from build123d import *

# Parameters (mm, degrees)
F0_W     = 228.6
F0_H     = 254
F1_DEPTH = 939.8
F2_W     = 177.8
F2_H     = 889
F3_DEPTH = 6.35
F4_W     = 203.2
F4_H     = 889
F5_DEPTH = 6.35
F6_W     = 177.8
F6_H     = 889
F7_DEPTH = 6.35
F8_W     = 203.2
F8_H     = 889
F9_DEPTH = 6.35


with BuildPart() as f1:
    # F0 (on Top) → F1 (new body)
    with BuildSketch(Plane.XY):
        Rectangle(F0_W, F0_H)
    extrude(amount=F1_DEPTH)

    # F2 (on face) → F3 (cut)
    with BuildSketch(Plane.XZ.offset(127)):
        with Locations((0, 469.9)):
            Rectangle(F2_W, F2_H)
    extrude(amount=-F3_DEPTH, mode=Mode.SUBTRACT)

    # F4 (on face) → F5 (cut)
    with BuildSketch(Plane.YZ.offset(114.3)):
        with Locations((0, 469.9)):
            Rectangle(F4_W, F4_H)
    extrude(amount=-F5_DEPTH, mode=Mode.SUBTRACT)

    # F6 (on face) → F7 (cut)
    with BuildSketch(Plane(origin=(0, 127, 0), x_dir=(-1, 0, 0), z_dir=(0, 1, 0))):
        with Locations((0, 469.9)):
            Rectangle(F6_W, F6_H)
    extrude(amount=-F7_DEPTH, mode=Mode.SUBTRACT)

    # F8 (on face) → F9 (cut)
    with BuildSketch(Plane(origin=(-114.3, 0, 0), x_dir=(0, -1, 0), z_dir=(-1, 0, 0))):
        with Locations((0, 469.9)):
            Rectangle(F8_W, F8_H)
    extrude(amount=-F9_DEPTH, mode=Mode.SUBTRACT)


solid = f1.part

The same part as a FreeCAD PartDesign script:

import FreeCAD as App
import Part
import Sketcher
from FreeCAD import Vector
Q = App.Units.Quantity


def add_polygon(sketch, points):
    """Adds a closed chain of lines whose ends are joined by coincident constraints."""
    first, n = sketch.GeometryCount, len(points)
    for a, b in zip(points, points[1:] + points[:1]):
        sketch.addGeometry(Part.LineSegment(App.Vector(*a, 0), App.Vector(*b, 0)), False)
    for i in range(n):
        sketch.addConstraint(Sketcher.Constraint("Coincident", first + i, 2, first + (i + 1) % n, 1))

doc = App.newDocument("Part")
params = doc.addObject("Spreadsheet::Sheet", "Params")
for row, (alias, value) in enumerate([
    ("sketch1_width", "9 in"),
    ("sketch1_height", "10 in"),
    ("pad1_length", "37 in"),
    ("sketch2_width", "7 in"),
    ("sketch2_height", "35 in"),
    ("pocket1_length", "0.25 in"),
    ("sketch3_width", "8 in"),
    ("sketch3_height", "35 in"),
    ("pocket2_length", "0.25 in"),
    ("sketch4_width", "7 in"),
    ("sketch4_height", "35 in"),
    ("pocket3_length", "0.25 in"),
    ("sketch5_width", "8 in"),
    ("sketch5_height", "35 in"),
    ("pocket4_length", "0.25 in"),
], start=1):
    params.set(f"A{row}", alias)
    params.set(f"B{row}", "=" + value)
    params.setAlias(f"B{row}", alias)

body = doc.addObject("PartDesign::Body", "Body")

# Sketch on XY plane
sketch1 = body.newObject("Sketcher::SketchObject", "Sketch")
sketch1.AttachmentSupport = (doc.getObject("XY_Plane"), [""])
sketch1.MapMode = "FlatFace"
add_polygon(sketch1, [(-114, 127), (-114, -127), (114, -127), (114, 127)])  # lines 0-3
sketch1.addConstraint(Sketcher.Constraint("Vertical", 0))
sketch1.addConstraint(Sketcher.Constraint("Horizontal", 1))
sketch1.addConstraint(Sketcher.Constraint("Vertical", 2))
sketch1.addConstraint(Sketcher.Constraint("Horizontal", 3))
sketch1.addConstraint(Sketcher.Constraint("Symmetric", 0, 2, 2, 2, -1, 1))
sketch1.addConstraint(Sketcher.Constraint("DistanceX", 1, 1, 1, 2, Q("9 in")))
sketch1.addConstraint(Sketcher.Constraint("DistanceY", 0, 2, 0, 1, Q("10 in")))
sketch1.setExpression("Constraints[9]", "Params.sketch1_width")
sketch1.setExpression("Constraints[10]", "Params.sketch1_height")
pad1 = body.newObject("PartDesign::Pad", "Pad")
pad1.Profile = sketch1
pad1.setExpression("Length", "Params.pad1_length")

# Sketch on XZ plane
sketch2 = body.newObject("Sketcher::SketchObject", "Sketch001")
sketch2.AttachmentSupport = (doc.getObject("XZ_Plane"), [""])
sketch2.MapMode = "FlatFace"
sketch2.AttachmentOffset = App.Placement(Vector(0, 0, 5 * 25.4), App.Rotation())
add_polygon(sketch2, [(-89, 914), (-89, 25), (89, 25), (89, 914)])  # lines 0-3
sketch2.addConstraint(Sketcher.Constraint("Vertical", 0))
sketch2.addConstraint(Sketcher.Constraint("Horizontal", 1))
sketch2.addConstraint(Sketcher.Constraint("Vertical", 2))
sketch2.addConstraint(Sketcher.Constraint("Horizontal", 3))
sketch2.addConstraint(Sketcher.Constraint("DistanceX", 1, 1, 1, 2, Q("7 in")))
sketch2.addConstraint(Sketcher.Constraint("DistanceY", 0, 2, 0, 1, Q("35 in")))
sketch2.addConstraint(Sketcher.Constraint("DistanceY", -1, 1, 0, 2, Q("1 in")))
sketch2.addConstraint(Sketcher.Constraint("DistanceX", 0, 2, -1, 1, Q("3.5 in")))
sketch2.setExpression("Constraints[8]", "Params.sketch2_width")
sketch2.setExpression("Constraints[9]", "Params.sketch2_height")
pocket1 = body.newObject("PartDesign::Pocket", "Pocket")
pocket1.Profile = sketch2
pocket1.setExpression("Length", "Params.pocket1_length")

# Sketch on YZ plane
sketch3 = body.newObject("Sketcher::SketchObject", "Sketch002")
sketch3.AttachmentSupport = (doc.getObject("YZ_Plane"), [""])
sketch3.MapMode = "FlatFace"
sketch3.AttachmentOffset = App.Placement(Vector(0, 0, 4.5 * 25.4), App.Rotation())
add_polygon(sketch3, [(-102, 914), (-102, 25), (102, 25), (102, 914)])  # lines 0-3
sketch3.addConstraint(Sketcher.Constraint("Vertical", 0))
sketch3.addConstraint(Sketcher.Constraint("Horizontal", 1))
sketch3.addConstraint(Sketcher.Constraint("Vertical", 2))
sketch3.addConstraint(Sketcher.Constraint("Horizontal", 3))
sketch3.addConstraint(Sketcher.Constraint("DistanceX", 1, 1, 1, 2, Q("8 in")))
sketch3.addConstraint(Sketcher.Constraint("DistanceY", 0, 2, 0, 1, Q("35 in")))
sketch3.addConstraint(Sketcher.Constraint("DistanceX", 0, 2, -1, 1, Q("4 in")))
sketch3.addConstraint(Sketcher.Constraint("DistanceY", -1, 1, 0, 2, Q("1 in")))
sketch3.setExpression("Constraints[8]", "Params.sketch3_width")
sketch3.setExpression("Constraints[9]", "Params.sketch3_height")
pocket2 = body.newObject("PartDesign::Pocket", "Pocket001")
pocket2.Profile = sketch3
pocket2.setExpression("Length", "Params.pocket2_length")

# Sketch on XZ plane
sketch4 = body.newObject("Sketcher::SketchObject", "Sketch003")
sketch4.AttachmentSupport = (doc.getObject("XZ_Plane"), [""])
sketch4.MapMode = "FlatFace"
sketch4.AttachmentOffset = App.Placement(Vector(0, 0, -5 * 25.4), App.Rotation())
add_polygon(sketch4, [(89, 914), (89, 25), (-89, 25), (-89, 914)])  # lines 0-3
sketch4.addConstraint(Sketcher.Constraint("Vertical", 0))
sketch4.addConstraint(Sketcher.Constraint("Horizontal", 1))
sketch4.addConstraint(Sketcher.Constraint("Vertical", 2))
sketch4.addConstraint(Sketcher.Constraint("Horizontal", 3))
sketch4.addConstraint(Sketcher.Constraint("DistanceX", 1, 2, 1, 1, Q("7 in")))
sketch4.addConstraint(Sketcher.Constraint("DistanceY", 0, 2, 0, 1, Q("35 in")))
sketch4.addConstraint(Sketcher.Constraint("DistanceY", -1, 1, 0, 2, Q("1 in")))
sketch4.addConstraint(Sketcher.Constraint("DistanceX", -1, 1, 0, 2, Q("3.5 in")))
sketch4.setExpression("Constraints[8]", "Params.sketch4_width")
sketch4.setExpression("Constraints[9]", "Params.sketch4_height")
pocket3 = body.newObject("PartDesign::Pocket", "Pocket002")
pocket3.Profile = sketch4
pocket3.setExpression("Length", "Params.pocket3_length")
pocket3.Reversed = True

# Sketch on YZ plane
sketch5 = body.newObject("Sketcher::SketchObject", "Sketch004")
sketch5.AttachmentSupport = (doc.getObject("YZ_Plane"), [""])
sketch5.MapMode = "FlatFace"
sketch5.AttachmentOffset = App.Placement(Vector(0, 0, -4.5 * 25.4), App.Rotation())
add_polygon(sketch5, [(102, 914), (102, 25), (-102, 25), (-102, 914)])  # lines 0-3
sketch5.addConstraint(Sketcher.Constraint("Vertical", 0))
sketch5.addConstraint(Sketcher.Constraint("Horizontal", 1))
sketch5.addConstraint(Sketcher.Constraint("Vertical", 2))
sketch5.addConstraint(Sketcher.Constraint("Horizontal", 3))
sketch5.addConstraint(Sketcher.Constraint("DistanceX", 1, 2, 1, 1, Q("8 in")))
sketch5.addConstraint(Sketcher.Constraint("DistanceY", 0, 2, 0, 1, Q("35 in")))
sketch5.addConstraint(Sketcher.Constraint("DistanceX", -1, 1, 0, 2, Q("4 in")))
sketch5.addConstraint(Sketcher.Constraint("DistanceY", -1, 1, 0, 2, Q("1 in")))
sketch5.setExpression("Constraints[8]", "Params.sketch5_width")
sketch5.setExpression("Constraints[9]", "Params.sketch5_height")
pocket4 = body.newObject("PartDesign::Pocket", "Pocket003")
pocket4.Profile = sketch5
pocket4.setExpression("Length", "Params.pocket4_length")
pocket4.Reversed = True

doc.recompute()
